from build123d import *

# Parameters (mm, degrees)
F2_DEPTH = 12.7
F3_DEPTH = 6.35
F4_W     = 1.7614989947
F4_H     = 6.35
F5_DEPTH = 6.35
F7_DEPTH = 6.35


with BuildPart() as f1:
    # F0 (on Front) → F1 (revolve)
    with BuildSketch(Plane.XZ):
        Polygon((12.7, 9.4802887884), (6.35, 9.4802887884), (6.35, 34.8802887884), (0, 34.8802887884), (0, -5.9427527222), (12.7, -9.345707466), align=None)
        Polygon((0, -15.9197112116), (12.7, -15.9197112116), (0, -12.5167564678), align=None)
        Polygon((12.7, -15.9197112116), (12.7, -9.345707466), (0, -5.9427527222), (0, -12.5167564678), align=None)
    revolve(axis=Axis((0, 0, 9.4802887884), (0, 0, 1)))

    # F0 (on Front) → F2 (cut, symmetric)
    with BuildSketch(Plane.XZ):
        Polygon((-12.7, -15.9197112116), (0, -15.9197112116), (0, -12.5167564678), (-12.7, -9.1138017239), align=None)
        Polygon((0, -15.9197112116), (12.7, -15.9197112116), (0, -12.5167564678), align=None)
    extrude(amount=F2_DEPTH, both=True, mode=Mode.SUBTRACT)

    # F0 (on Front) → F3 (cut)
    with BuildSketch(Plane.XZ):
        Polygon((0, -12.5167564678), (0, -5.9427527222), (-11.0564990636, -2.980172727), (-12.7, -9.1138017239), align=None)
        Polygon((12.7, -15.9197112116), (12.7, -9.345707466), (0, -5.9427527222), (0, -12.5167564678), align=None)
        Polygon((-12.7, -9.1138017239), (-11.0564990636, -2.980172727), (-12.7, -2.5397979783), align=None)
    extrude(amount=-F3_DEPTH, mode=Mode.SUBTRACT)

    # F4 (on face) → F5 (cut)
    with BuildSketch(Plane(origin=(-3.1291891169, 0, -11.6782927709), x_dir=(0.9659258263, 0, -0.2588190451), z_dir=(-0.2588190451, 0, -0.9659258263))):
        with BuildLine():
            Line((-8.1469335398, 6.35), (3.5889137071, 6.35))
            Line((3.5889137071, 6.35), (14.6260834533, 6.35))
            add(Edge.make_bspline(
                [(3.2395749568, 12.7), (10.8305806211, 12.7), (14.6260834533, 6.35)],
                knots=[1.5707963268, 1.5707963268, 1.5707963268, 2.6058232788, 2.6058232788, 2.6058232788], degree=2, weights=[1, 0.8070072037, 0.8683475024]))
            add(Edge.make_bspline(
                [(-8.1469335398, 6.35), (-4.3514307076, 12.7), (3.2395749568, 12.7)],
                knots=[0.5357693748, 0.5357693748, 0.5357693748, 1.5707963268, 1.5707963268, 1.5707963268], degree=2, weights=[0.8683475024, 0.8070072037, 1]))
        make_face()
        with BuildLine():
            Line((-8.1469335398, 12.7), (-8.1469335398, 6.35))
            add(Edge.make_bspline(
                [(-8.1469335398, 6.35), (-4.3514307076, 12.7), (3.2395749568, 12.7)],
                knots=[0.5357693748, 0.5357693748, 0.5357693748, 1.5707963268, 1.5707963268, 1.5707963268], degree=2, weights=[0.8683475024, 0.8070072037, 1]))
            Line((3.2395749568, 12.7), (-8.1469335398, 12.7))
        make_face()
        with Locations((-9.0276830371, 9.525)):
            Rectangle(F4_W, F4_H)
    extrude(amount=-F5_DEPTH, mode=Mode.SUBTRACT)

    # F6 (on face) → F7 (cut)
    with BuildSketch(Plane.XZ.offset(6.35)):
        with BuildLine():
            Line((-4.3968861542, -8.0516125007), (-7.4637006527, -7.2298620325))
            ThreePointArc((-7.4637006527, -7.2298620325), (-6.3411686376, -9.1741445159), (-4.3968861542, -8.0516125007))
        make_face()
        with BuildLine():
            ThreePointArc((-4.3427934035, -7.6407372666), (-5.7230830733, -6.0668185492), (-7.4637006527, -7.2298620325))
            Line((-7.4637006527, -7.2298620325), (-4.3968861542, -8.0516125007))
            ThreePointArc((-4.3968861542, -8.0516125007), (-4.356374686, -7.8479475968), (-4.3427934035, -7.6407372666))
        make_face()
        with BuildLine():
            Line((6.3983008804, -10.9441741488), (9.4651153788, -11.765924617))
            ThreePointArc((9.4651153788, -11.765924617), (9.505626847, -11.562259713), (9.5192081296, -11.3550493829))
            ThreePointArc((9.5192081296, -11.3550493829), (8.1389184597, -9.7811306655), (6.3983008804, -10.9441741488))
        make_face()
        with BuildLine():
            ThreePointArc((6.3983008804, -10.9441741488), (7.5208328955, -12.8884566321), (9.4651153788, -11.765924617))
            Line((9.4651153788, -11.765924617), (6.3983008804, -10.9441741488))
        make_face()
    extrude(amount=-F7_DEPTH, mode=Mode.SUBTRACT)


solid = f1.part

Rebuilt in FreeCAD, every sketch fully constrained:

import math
import FreeCAD as App
import Part
import Sketcher
Q = App.Units.Quantity


def add_polygon(sketch, points):
    """Adds a closed chain of lines whose ends are joined by coincident constraints."""
    first, n = sketch.GeometryCount, len(points)
    for a, b in zip(points, points[1:] + points[:1]):
        sketch.addGeometry(Part.LineSegment(App.Vector(*a, 0), App.Vector(*b, 0)), False)
    for i in range(n):
        sketch.addConstraint(Sketcher.Constraint("Coincident", first + i, 2, first + (i + 1) % n, 1))

doc = App.newDocument("Part")
body = doc.addObject("PartDesign::Body", "Body")

sketch1 = body.newObject("Sketcher::SketchObject", "Sketch")
sketch1.AttachmentSupport = (doc.getObject("XZ_Plane"), [""])
sketch1.MapMode = "FlatFace"
add_polygon(sketch1, [(13, 9), (6, 9), (6, 35), (0, 35), (0, -16), (13, -16)])
sketch1.addConstraint([
    Sketcher.Constraint("Horizontal", 0),
    Sketcher.Constraint("Vertical", 1),
    Sketcher.Constraint("Horizontal", 2),
    Sketcher.Constraint("Vertical", 3),
    Sketcher.Constraint("Horizontal", 4),
    Sketcher.Constraint("Vertical", 5),
    Sketcher.Constraint("PointOnObject", 2, 2, -2),
    Sketcher.Constraint("Equal", 0, 2),
    Sketcher.Constraint("Equal", 1, 5),
    Sketcher.Constraint("DistanceY", 1, 1, 1, 2, Q("1 in")),
    Sketcher.Constraint("DistanceX", 4, 1, 4, 2, Q("0.5 in")),
    Sketcher.Constraint("DistanceY", -1, 1, 0, 2, Q("9.480289 mm")),
])
revolution = body.newObject("PartDesign::Revolution", "Revolution")
revolution.Profile = sketch1
revolution.ReferenceAxis = (sketch1, ["V_Axis"])
revolution.Angle = 360

sketch2 = body.newObject("Sketcher::SketchObject", "Sketch001")
sketch2.AttachmentSupport = (doc.getObject("XZ_Plane"), [""])
sketch2.MapMode = "FlatFace"
add_polygon(sketch2, [(-13, -16), (13, -16), (0, -13), (-13, -9)])
sketch2.addConstraint([
    Sketcher.Constraint("Horizontal", 0),
    Sketcher.Constraint("Vertical", 3),
    Sketcher.Constraint("PointOnObject", 1, 2, -2),
    Sketcher.Constraint("Parallel", 1, 2),
    Sketcher.Constraint("Equal", 1, 2),
    Sketcher.Constraint("DistanceX", 0, 1, 0, 2, Q("1 in")),
    Sketcher.Constraint("Angle", 1, Q("165 deg")),
    Sketcher.Constraint("DistanceY", 2, 2, -1, 1, Q("9.113802 mm")),
])
pocket1 = body.newObject("PartDesign::Pocket", "Pocket")
pocket1.Profile = sketch2
pocket1.Length = Q("1 in")
pocket1.Midplane = True

sketch3 = body.newObject("Sketcher::SketchObject", "Sketch002")
sketch3.AttachmentSupport = (doc.getObject("XZ_Plane"), [""])
sketch3.MapMode = "FlatFace"
add_polygon(sketch3, [(0, -5.9), (-11.1, -3), (-12.7, -2.5), (-12.7, -9.1), (0, -12.5), (12.7, -15.9), (12.7, -9.3)])
sketch3.addConstraint([
    Sketcher.Constraint("Vertical", 2),
    Sketcher.Constraint("Vertical", 5),
    Sketcher.Constraint("PointOnObject", 3, 2, -2),
    Sketcher.Constraint("PointOnObject", 6, 2, -2),
    Sketcher.Constraint("Parallel", 0, 1),
    Sketcher.Constraint("Parallel", 1, 3),
    Sketcher.Constraint("Parallel", 3, 4),
    Sketcher.Constraint("Parallel", 4, 6),
    Sketcher.Constraint("Equal", 3, 4),
    Sketcher.Constraint("Angle", 0, Q("165 deg")),
    Sketcher.Constraint("DistanceX", 2, 2, 4, 2, Q("1 in")),
    Sketcher.Constraint("DistanceX", 0, 2, -1, 1, Q("11.056499 mm")),
    Sketcher.Constraint("DistanceY", 2, 2, -1, 1, Q("9.113802 mm")),
    Sketcher.Constraint("DistanceY", 2, 2, 2, 1, Q("6.574004 mm")),
])
pocket2 = body.newObject("PartDesign::Pocket", "Pocket001")
pocket2.Profile = sketch3
pocket2.Length = Q("0.25 in")

sketch4 = body.newObject("Sketcher::SketchObject", "Sketch003")
sketch4.Placement = App.Placement(App.Vector(-3.129189, 0, -11.678293), App.Rotation(App.Vector(0.965925826, 0, -0.258819045), App.Vector(0, -0.999999999, 0), App.Vector(-0.258819045, 0, -0.965925826), "ZXY"))
sketch4.addGeometry([
    Part.BSplineCurve([App.Vector(3.239575, 12.7, 0), App.Vector(5.689973, 12.7, 0), App.Vector(8.402167, 12.145879, 0), App.Vector(11.074039, 10.819914, 0), App.Vector(13.215128, 8.710574, 0), App.Vector(14.626083, 6.35, 0)], [6, 6], [1.570796327, 2.605823279], False, 5, [1, 1, 0.995091554, 0.99305841, 1, 1], False),
    Part.LineSegment(App.Vector(3.239575, 12.7, 0), App.Vector(-9.908433, 12.7, 0)),
    Part.LineSegment(App.Vector(-9.908433, 12.7, 0), App.Vector(-9.908433, 6.35, 0)),
    Part.LineSegment(App.Vector(-9.908433, 6.35, 0), App.Vector(14.626083, 6.35, 0)),
], False)
sketch4.addConstraint([
    Sketcher.Constraint("Block", 0),
    Sketcher.Constraint("Coincident", 0, 1, 1, 1),
    Sketcher.Constraint("Coincident", 1, 2, 2, 1),
    Sketcher.Constraint("Coincident", 2, 2, 3, 1),
    Sketcher.Constraint("Coincident", 3, 2, 0, 2),
    Sketcher.Constraint("Horizontal", 1),
    Sketcher.Constraint("Vertical", 2),
    Sketcher.Constraint("Horizontal", 3),
    Sketcher.Constraint("DistanceX", 1, 2, 1, 1, Q("13.148007 mm")),
])
pocket3 = body.newObject("PartDesign::Pocket", "Pocket002")
pocket3.Profile = sketch4
pocket3.Length = Q("0.25 in")

sketch5 = body.newObject("Sketcher::SketchObject", "Sketch004")
sketch5.AttachmentSupport = (doc.getObject("XZ_Plane"), [""])
sketch5.MapMode = "FlatFace"
sketch5.AttachmentOffset = App.Placement(App.Vector(0, 0, 0.25 * 25.4), App.Rotation())
sketch5.addGeometry([
    Part.ArcOfCircle(Part.Circle(App.Vector(-5.93, -7.64, 0), App.Vector(0, 0, 1), 1.59), math.radians(165), math.radians(345)),
    Part.ArcOfCircle(Part.Circle(App.Vector(-5.93, -7.64, 0), App.Vector(0, 0, 1), 1.59), math.radians(-15), math.radians(0)),
    Part.ArcOfCircle(Part.Circle(App.Vector(-5.93, -7.64, 0), App.Vector(0, 0, 1), 1.59), math.radians(0), math.radians(165)),
    Part.ArcOfCircle(Part.Circle(App.Vector(7.93, -11.36, 0), App.Vector(0, 0, 1), 1.59), math.radians(-15), math.radians(0)),
    Part.ArcOfCircle(Part.Circle(App.Vector(7.93, -11.36, 0), App.Vector(0, 0, 1), 1.59), math.radians(0), math.radians(165)),
    Part.ArcOfCircle(Part.Circle(App.Vector(7.93, -11.36, 0), App.Vector(0, 0, 1), 1.59), math.radians(165), math.radians(345)),
], False)
sketch5.addConstraint([
    Sketcher.Constraint("Tangent", 0, 2, 1, 1),
    Sketcher.Constraint("Tangent", 1, 2, 2, 1),
    Sketcher.Constraint("Tangent", 2, 2, 0, 1),
    Sketcher.Constraint("Tangent", 3, 2, 4, 1),
    Sketcher.Constraint("Tangent", 4, 2, 5, 1),
    Sketcher.Constraint("Tangent", 5, 2, 3, 1),
    Sketcher.Constraint("Equal", 2, 3),
    Sketcher.Constraint("Horizontal", 2, 3, 1, 2),
    Sketcher.Constraint("Horizontal", 5, 3, 3, 2),
    Sketcher.Constraint("Radius", 0, Q("0.0625 in")),
    Sketcher.Constraint("DistanceX", 2, 2, -1, 1, Q("7.463701 mm")),
    Sketcher.Constraint("DistanceX", -1, 1, 4, 2, Q("6.398301 mm")),
    Sketcher.Constraint("DistanceX", 1, 3, 3, 3, Q("13.862002 mm")),
    Sketcher.Constraint("DistanceX", -1, 1, 3, 3, Q("7.931708 mm")),
    Sketcher.Constraint("DistanceY", 3, 3, -1, 1, Q("11.355049 mm")),
    Sketcher.Constraint("DistanceY", 0, 2, 2, 2, Q("0.82175 mm")),
    Sketcher.Constraint("DistanceY", 4, 2, 0, 2, Q("2.892562 mm")),
    Sketcher.Constraint("DistanceY", 5, 2, 4, 2, Q("0.82175 mm")),
])
pocket4 = body.newObject("PartDesign::Pocket", "Pocket003")
pocket4.Profile = sketch5
pocket4.Length = Q("0.25 in")

doc.recompute()
